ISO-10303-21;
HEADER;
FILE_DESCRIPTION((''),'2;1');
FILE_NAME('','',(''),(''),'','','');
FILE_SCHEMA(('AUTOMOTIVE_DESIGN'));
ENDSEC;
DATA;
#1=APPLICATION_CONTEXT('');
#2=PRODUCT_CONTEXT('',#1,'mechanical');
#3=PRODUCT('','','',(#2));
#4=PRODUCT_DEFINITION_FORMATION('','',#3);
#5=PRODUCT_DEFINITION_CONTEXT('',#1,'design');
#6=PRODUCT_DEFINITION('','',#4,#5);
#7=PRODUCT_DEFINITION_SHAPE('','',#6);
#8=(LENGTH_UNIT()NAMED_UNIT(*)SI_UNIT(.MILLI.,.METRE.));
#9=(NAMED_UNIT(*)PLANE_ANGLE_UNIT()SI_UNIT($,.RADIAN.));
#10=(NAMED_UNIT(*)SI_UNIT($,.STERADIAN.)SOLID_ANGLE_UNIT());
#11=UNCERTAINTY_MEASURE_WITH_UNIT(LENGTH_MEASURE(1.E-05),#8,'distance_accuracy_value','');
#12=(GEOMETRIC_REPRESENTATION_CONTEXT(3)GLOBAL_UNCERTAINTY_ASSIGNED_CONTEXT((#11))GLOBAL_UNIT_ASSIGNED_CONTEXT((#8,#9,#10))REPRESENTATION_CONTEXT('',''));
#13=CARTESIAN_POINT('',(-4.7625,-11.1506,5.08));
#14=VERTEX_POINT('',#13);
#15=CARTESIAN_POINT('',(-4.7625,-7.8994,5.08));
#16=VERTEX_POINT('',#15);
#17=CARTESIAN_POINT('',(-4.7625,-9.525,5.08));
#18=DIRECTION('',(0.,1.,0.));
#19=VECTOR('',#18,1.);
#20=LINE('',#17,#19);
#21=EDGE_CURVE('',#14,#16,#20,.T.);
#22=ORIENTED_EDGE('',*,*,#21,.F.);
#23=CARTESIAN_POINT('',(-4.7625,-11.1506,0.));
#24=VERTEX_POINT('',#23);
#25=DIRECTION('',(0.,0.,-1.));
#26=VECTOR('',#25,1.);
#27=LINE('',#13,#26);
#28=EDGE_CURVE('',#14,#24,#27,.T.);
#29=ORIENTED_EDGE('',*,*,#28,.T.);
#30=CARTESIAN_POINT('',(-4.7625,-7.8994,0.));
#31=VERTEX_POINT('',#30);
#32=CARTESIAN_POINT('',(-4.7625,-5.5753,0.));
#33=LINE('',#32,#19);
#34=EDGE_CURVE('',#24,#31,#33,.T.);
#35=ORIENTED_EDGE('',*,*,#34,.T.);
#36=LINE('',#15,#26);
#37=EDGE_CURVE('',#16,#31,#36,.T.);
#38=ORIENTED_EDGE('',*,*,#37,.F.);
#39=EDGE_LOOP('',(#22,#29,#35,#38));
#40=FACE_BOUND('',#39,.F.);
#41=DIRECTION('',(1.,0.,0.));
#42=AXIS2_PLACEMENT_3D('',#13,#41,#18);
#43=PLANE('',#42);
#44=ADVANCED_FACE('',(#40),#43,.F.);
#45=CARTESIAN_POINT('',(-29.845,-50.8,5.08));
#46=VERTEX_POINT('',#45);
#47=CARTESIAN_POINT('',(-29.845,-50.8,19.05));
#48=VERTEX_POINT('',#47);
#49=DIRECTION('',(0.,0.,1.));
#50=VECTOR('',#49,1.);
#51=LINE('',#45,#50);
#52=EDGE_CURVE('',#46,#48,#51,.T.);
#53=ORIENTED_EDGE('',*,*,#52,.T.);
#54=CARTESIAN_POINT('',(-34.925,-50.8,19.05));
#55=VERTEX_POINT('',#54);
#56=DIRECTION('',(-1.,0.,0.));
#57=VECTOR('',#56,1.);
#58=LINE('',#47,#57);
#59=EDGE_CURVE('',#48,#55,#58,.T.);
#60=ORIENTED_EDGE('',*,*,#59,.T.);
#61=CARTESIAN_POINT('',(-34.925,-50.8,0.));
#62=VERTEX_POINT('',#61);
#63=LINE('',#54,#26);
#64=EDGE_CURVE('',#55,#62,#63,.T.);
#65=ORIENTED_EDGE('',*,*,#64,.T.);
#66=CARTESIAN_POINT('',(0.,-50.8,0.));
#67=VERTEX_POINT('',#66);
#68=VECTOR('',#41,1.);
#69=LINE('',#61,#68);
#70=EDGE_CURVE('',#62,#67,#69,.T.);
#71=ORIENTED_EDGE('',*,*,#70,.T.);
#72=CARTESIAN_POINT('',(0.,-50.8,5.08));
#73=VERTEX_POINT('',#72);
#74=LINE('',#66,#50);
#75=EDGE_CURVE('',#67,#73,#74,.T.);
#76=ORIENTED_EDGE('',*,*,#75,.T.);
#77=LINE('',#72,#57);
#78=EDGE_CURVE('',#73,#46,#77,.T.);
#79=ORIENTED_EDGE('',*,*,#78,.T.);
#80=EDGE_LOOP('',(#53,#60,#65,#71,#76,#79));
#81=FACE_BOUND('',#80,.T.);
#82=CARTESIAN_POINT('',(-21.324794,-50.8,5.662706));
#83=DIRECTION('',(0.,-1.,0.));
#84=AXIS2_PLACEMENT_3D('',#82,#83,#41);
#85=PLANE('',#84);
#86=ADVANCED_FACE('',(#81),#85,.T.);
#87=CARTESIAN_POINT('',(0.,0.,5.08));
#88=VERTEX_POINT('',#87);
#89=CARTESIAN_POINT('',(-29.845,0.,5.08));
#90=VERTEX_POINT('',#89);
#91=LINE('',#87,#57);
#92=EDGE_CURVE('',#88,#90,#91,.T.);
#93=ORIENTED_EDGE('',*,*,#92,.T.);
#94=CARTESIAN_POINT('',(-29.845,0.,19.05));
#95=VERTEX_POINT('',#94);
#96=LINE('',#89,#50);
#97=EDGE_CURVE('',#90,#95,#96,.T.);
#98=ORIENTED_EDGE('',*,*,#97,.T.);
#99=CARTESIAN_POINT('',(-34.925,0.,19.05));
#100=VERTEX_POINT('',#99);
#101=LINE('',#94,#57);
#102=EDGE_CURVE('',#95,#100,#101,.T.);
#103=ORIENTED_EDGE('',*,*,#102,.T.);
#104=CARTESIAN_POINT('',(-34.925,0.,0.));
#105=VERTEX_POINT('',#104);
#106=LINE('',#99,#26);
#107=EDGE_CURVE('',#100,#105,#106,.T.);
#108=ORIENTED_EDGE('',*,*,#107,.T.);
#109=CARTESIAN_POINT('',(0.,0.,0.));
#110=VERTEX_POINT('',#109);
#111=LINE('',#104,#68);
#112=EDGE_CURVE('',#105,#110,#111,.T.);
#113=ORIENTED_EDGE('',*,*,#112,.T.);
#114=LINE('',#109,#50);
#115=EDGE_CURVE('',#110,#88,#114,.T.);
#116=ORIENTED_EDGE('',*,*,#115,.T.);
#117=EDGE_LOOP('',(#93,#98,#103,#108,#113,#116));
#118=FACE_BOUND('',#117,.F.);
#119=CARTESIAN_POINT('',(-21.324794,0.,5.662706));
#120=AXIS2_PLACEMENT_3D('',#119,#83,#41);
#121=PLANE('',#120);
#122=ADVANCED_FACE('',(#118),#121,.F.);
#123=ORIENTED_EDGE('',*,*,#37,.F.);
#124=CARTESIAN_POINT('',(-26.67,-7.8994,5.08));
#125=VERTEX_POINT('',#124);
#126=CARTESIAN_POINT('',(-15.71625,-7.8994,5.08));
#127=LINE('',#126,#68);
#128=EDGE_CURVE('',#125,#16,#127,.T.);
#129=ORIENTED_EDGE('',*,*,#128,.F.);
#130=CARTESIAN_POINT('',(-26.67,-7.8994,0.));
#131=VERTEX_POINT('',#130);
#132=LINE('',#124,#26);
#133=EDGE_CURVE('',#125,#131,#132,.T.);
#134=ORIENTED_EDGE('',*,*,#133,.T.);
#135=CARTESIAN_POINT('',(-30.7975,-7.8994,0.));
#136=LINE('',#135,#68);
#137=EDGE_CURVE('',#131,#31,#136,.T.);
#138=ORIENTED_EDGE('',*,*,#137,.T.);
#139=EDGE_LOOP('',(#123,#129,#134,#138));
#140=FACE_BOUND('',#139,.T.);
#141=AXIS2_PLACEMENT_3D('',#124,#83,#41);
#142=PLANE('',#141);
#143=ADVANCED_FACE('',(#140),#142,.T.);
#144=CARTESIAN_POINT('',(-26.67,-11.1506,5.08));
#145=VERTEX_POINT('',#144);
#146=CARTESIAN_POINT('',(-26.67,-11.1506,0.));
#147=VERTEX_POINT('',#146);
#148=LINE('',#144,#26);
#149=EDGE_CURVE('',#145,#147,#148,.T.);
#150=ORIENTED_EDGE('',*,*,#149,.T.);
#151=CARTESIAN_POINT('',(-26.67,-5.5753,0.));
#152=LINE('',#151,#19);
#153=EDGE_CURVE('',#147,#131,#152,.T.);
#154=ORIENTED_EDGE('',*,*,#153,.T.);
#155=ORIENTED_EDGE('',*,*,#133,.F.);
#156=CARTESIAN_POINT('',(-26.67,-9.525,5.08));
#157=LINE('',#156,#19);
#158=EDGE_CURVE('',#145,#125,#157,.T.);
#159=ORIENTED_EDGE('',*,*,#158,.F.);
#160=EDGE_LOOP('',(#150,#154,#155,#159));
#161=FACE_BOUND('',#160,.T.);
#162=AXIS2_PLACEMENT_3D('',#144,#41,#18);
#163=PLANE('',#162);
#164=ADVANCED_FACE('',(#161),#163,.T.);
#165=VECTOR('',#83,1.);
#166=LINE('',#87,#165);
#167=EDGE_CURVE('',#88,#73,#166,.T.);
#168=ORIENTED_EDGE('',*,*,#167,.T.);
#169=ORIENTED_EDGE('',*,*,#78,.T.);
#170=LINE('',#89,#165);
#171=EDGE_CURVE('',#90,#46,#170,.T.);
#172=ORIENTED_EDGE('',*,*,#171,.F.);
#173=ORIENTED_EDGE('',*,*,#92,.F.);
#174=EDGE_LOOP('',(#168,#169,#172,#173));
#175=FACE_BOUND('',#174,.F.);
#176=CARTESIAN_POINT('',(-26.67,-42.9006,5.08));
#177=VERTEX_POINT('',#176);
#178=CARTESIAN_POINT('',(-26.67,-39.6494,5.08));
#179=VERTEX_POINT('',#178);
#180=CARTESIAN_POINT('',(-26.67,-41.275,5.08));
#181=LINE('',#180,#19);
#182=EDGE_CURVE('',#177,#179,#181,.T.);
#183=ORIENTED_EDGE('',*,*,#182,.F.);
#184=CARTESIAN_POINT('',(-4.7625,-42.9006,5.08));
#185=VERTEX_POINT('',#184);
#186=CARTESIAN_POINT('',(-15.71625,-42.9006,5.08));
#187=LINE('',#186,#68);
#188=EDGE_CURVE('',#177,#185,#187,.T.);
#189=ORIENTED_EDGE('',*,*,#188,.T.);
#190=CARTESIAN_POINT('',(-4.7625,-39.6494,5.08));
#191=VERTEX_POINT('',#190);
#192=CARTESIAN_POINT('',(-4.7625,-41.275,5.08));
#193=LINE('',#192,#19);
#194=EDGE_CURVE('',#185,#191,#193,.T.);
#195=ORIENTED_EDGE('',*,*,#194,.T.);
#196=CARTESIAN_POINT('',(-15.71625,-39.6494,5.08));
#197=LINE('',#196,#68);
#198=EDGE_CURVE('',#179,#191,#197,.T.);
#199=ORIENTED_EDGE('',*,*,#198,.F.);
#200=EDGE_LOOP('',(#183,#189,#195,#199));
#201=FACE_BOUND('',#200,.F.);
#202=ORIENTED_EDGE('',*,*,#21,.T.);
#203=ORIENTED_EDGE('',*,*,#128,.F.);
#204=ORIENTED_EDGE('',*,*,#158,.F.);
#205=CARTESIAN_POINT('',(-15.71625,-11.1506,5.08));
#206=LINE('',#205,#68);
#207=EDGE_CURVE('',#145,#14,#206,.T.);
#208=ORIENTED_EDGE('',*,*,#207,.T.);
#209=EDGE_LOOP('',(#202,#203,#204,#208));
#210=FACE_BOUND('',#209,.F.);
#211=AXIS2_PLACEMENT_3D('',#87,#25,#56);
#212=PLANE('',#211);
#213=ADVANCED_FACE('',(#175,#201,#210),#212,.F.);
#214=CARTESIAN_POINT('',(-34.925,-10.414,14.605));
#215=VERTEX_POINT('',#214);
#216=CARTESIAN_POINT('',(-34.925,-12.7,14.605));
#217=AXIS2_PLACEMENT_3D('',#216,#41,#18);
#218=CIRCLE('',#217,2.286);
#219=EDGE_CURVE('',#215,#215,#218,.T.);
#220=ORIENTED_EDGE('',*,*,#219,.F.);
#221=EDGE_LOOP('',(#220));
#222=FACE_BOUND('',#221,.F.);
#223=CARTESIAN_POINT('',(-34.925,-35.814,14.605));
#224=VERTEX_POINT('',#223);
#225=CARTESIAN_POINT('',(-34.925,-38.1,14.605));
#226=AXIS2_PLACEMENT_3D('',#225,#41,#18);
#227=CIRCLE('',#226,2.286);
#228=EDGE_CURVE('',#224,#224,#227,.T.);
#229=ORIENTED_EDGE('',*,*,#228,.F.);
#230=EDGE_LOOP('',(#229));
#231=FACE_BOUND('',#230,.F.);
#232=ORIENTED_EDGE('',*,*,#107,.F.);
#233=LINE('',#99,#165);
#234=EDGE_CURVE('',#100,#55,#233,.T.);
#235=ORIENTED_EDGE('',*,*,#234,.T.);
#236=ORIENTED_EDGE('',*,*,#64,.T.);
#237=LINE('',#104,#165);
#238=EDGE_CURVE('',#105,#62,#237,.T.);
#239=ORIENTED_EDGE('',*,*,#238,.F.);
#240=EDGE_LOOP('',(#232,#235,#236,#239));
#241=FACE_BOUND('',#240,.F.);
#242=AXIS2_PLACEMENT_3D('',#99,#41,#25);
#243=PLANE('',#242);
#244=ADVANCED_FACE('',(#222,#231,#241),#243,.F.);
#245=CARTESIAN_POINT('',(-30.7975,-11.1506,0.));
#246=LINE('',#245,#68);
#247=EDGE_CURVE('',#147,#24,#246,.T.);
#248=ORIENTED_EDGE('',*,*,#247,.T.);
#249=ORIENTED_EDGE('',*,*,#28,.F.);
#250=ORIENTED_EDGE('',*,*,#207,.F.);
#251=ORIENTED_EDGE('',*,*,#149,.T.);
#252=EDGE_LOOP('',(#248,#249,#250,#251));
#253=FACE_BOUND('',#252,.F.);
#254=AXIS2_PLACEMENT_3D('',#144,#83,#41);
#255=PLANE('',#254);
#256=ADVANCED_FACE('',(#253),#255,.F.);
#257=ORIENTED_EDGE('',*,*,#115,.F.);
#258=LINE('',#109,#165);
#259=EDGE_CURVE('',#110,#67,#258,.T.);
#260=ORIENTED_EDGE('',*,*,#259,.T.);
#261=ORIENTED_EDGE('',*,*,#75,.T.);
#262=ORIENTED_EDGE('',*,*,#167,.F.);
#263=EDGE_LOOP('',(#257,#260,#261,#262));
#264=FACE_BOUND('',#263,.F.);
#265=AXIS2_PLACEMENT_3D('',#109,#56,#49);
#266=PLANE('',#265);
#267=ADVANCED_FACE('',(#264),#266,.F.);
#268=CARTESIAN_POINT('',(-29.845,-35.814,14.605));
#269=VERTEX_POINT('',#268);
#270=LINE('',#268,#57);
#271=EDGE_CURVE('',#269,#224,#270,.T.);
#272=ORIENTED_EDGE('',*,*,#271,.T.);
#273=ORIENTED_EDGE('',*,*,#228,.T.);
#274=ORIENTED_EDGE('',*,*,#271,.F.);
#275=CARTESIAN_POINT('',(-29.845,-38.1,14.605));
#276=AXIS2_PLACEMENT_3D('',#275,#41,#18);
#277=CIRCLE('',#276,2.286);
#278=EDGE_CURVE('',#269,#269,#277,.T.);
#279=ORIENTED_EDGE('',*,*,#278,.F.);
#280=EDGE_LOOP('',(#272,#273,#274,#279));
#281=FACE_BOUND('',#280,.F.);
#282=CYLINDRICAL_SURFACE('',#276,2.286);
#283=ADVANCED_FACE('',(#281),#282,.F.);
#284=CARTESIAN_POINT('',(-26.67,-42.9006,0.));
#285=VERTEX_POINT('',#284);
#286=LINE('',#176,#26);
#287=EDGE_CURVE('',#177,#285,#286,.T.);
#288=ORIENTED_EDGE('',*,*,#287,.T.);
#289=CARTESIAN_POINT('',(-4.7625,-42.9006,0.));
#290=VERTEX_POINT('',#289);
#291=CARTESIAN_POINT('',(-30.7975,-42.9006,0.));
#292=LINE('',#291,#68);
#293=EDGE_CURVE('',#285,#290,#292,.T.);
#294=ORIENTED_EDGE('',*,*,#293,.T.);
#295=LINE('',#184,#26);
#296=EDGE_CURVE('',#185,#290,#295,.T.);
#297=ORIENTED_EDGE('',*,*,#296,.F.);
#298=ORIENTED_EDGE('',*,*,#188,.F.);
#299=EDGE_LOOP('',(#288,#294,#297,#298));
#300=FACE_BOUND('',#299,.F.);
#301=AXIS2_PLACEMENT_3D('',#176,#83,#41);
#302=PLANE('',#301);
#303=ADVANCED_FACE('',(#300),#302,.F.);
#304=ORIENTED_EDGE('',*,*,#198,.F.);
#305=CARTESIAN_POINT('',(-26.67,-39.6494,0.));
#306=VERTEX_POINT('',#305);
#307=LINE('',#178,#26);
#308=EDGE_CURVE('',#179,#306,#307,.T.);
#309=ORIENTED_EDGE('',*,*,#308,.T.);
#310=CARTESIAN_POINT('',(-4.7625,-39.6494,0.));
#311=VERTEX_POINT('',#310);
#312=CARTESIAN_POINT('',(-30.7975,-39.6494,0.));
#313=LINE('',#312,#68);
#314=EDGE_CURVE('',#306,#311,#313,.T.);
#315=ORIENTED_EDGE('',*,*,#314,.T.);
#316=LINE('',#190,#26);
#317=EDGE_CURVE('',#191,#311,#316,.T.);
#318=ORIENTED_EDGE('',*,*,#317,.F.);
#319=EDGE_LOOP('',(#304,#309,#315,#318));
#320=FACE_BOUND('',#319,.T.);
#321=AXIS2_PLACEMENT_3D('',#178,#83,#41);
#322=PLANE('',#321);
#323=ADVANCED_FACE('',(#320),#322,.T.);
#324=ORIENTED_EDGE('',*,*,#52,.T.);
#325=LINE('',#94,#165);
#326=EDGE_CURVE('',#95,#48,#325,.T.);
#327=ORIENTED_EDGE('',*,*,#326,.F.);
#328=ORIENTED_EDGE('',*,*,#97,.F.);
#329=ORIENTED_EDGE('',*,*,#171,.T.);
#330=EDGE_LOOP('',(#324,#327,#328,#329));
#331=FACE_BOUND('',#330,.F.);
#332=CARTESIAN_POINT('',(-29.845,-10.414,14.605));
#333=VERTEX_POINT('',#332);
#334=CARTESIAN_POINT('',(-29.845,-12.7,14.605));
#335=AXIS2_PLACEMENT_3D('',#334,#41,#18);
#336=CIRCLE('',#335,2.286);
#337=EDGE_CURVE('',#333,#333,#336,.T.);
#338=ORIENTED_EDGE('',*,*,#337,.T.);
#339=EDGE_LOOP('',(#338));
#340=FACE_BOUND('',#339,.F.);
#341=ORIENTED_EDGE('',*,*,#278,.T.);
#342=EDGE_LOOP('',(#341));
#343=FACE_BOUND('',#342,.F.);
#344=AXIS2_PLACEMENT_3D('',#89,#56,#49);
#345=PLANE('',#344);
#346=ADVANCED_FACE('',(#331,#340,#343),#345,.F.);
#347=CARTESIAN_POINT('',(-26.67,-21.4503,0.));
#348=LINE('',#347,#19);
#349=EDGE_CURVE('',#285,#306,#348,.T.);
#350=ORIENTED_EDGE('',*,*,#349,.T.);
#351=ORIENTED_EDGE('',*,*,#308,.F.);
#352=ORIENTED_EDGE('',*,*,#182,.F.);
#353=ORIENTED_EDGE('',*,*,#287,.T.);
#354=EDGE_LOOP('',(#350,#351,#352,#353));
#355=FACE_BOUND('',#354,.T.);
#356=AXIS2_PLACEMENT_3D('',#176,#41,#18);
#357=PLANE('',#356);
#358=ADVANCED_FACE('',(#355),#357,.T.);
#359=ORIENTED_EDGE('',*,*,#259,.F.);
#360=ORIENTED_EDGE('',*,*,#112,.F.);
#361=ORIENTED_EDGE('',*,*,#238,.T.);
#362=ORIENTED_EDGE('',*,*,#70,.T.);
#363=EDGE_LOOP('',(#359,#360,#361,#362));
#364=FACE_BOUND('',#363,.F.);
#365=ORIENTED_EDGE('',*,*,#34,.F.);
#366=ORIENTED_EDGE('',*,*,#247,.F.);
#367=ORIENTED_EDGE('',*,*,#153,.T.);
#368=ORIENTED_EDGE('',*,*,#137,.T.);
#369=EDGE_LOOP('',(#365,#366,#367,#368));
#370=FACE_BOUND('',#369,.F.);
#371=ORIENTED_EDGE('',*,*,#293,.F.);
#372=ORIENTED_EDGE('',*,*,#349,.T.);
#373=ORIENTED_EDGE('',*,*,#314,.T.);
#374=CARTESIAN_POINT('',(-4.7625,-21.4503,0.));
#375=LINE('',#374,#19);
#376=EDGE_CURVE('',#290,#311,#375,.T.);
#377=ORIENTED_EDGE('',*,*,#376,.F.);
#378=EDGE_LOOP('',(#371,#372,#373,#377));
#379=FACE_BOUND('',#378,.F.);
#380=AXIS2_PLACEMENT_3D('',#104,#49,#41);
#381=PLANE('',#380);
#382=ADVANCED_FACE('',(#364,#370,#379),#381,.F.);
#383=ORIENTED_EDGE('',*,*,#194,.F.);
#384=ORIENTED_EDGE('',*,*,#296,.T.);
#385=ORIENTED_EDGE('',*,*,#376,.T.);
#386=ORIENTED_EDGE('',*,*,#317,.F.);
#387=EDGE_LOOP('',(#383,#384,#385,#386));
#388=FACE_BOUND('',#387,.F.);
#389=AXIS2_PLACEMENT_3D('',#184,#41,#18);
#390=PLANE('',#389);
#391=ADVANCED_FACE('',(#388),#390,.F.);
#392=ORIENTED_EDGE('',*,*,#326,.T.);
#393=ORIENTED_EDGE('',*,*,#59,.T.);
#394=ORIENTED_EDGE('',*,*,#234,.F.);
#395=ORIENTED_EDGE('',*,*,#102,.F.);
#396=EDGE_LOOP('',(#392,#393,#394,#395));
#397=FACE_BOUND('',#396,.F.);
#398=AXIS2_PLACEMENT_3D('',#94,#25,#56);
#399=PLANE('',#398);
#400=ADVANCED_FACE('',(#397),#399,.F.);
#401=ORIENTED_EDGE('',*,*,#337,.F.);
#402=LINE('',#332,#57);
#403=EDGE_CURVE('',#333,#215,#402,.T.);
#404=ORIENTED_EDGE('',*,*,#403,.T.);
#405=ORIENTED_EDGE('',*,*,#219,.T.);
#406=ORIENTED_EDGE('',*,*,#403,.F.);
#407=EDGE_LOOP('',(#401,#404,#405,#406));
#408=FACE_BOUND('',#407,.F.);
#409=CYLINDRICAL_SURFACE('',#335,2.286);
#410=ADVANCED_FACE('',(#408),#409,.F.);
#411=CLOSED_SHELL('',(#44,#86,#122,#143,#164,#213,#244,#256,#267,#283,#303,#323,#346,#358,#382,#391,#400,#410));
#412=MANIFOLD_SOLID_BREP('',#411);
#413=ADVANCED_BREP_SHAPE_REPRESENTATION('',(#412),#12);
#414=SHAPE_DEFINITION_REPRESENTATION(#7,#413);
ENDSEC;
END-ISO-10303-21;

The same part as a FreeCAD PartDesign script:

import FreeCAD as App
import Part
import Sketcher
Q = App.Units.Quantity

doc = App.newDocument("Part")
body = doc.addObject("PartDesign::Body", "Body")

# Sketch on XZ plane
sketch1 = body.newObject("Sketcher::SketchObject", "Sketch")
sketch1.AttachmentSupport = (doc.getObject("XZ_Plane"), [""])
sketch1.MapMode = "FlatFace"
sketch1.addGeometry([
    Part.LineSegment(App.Vector(-35, 0, 0), App.Vector(0, 0, 0)),  # 0
    Part.LineSegment(App.Vector(0, 0, 0), App.Vector(0, 5, 0)),  # 1
    Part.LineSegment(App.Vector(0, 5, 0), App.Vector(-30, 5, 0)),  # 2
    Part.LineSegment(App.Vector(-30, 5, 0), App.Vector(-30, 19, 0)),  # 3
    Part.LineSegment(App.Vector(-30, 19, 0), App.Vector(-35, 19, 0)),  # 4
    Part.LineSegment(App.Vector(-35, 19, 0), App.Vector(-35, 0, 0)),  # 5
], False)
sketch1.addConstraint([
    Sketcher.Constraint("Coincident", 0, 2, 1, 1),
    Sketcher.Constraint("Coincident", 1, 2, 2, 1),
    Sketcher.Constraint("Coincident", 2, 2, 3, 1),
    Sketcher.Constraint("Coincident", 3, 2, 4, 1),
    Sketcher.Constraint("Coincident", 4, 2, 5, 1),
    Sketcher.Constraint("Coincident", 5, 2, 0, 1),
    Sketcher.Constraint("Horizontal", 0),
    Sketcher.Constraint("Vertical", 1),
    Sketcher.Constraint("Horizontal", 2),
    Sketcher.Constraint("Vertical", 3),
    Sketcher.Constraint("Horizontal", 4),
    Sketcher.Constraint("Vertical", 5),
    Sketcher.Constraint("Coincident", 0, 2, -1, 1),
    Sketcher.Constraint("Equal", 4, 1),
    Sketcher.Constraint("DistanceX", 4, 2, 4, 1, Q("0.2 in")),
    Sketcher.Constraint("DistanceY", 3, 1, 3, 2, Q("0.55 in")),
    Sketcher.Constraint("DistanceX", 0, 1, 0, 2, Q("1.375 in")),
])
pad1 = body.newObject("PartDesign::Pad", "Pad")
pad1.Profile = sketch1
pad1.Length = Q("2 in")

# Sketch on XY plane
sketch2 = body.newObject("Sketcher::SketchObject", "Sketch001")
sketch2.AttachmentSupport = (doc.getObject("XY_Plane"), [""])
sketch2.MapMode = "FlatFace"
sketch2.AttachmentOffset = App.Placement(App.Vector(0, 0, 0.2 * 25.4), App.Rotation())
sketch2.addGeometry([
    Part.LineSegment(App.Vector(-26.7, -39.6, 0), App.Vector(-26.7, -42.9, 0)),  # 0
    Part.LineSegment(App.Vector(-26.7, -42.9, 0), App.Vector(-4.8, -42.9, 0)),  # 1
    Part.LineSegment(App.Vector(-4.8, -42.9, 0), App.Vector(-4.8, -39.6, 0)),  # 2
    Part.LineSegment(App.Vector(-4.8, -39.6, 0), App.Vector(-26.7, -39.6, 0)),  # 3
    Part.LineSegment(App.Vector(-26.7, -7.9, 0), App.Vector(-26.7, -11.2, 0)),  # 4
    Part.LineSegment(App.Vector(-26.7, -11.2, 0), App.Vector(-4.8, -11.2, 0)),  # 5
    Part.LineSegment(App.Vector(-4.8, -11.2, 0), App.Vector(-4.8, -7.9, 0)),  # 6
    Part.LineSegment(App.Vector(-4.8, -7.9, 0), App.Vector(-26.7, -7.9, 0)),  # 7
], False)
sketch2.addConstraint([
    Sketcher.Constraint("Coincident", 0, 2, 1, 1),
    Sketcher.Constraint("Coincident", 1, 2, 2, 1),
    Sketcher.Constraint("Coincident", 2, 2, 3, 1),
    Sketcher.Constraint("Coincident", 3, 2, 0, 1),
    Sketcher.Constraint("Coincident", 4, 2, 5, 1),
    Sketcher.Constraint("Coincident", 5, 2, 6, 1),
    Sketcher.Constraint("Coincident", 6, 2, 7, 1),
    Sketcher.Constraint("Coincident", 7, 2, 4, 1),
    Sketcher.Constraint("Vertical", 0),
    Sketcher.Constraint("Horizontal", 1),
    Sketcher.Constraint("Vertical", 2),
    Sketcher.Constraint("Horizontal", 3),
    Sketcher.Constraint("Vertical", 4),
    Sketcher.Constraint("Horizontal", 5),
    Sketcher.Constraint("Vertical", 6),
    Sketcher.Constraint("Horizontal", 7),
    Sketcher.Constraint("Vertical", 3, 2, 4, 2),
    Sketcher.Constraint("Vertical", 2, 2, 5, 2),
    Sketcher.Constraint("Equal", 2, 4),
    Sketcher.Constraint("DistanceY", 0, 2, 0, 1, Q("0.128 in")),
    Sketcher.Constraint("DistanceX", 0, 2, -1, 1, Q("1.05 in")),
    Sketcher.Constraint("DistanceY", 0, 2, 4, 2, Q("1.25 in")),
    Sketcher.Constraint("DistanceX", 1, 1, 1, 2, Q("0.8625 in")),
    Sketcher.Constraint("DistanceY", 0, 2, -1, 1, Q("1.689 in")),
])
pocket1 = body.newObject("PartDesign::Pocket", "Pocket")
pocket1.Profile = sketch2
pocket1.Length = Q("1 in")

# Sketch on YZ plane
sketch3 = body.newObject("Sketcher::SketchObject", "Sketch002")
sketch3.AttachmentSupport = (doc.getObject("YZ_Plane"), [""])
sketch3.MapMode = "FlatFace"
sketch3.AttachmentOffset = App.Placement(App.Vector(0, 0, -1.175 * 25.4), App.Rotation())
sketch3.addGeometry([
    Part.Circle(App.Vector(-38.1, 14.6, 0), App.Vector(0, 0, 1), 2.3),
    Part.Circle(App.Vector(-12.7, 14.6, 0), App.Vector(0, 0, 1), 2.3),
], False)
sketch3.addConstraint([
    Sketcher.Constraint("Equal", 0, 1),
    Sketcher.Constraint("Horizontal", 0, 3, 1, 3),
    Sketcher.Constraint("Diameter", 0, Q("0.18 in")),
    Sketcher.Constraint("DistanceX", 0, 3, 1, 3, Q("1 in")),
    Sketcher.Constraint("DistanceX", 0, 3, -1, 1, Q("1.5 in")),
    Sketcher.Constraint("DistanceY", -1, 1, 0, 3, Q("0.575 in")),
])
pocket2 = body.newObject("PartDesign::Pocket", "Pocket001")
pocket2.Profile = sketch3
pocket2.Length = Q("1 in")

doc.recompute()
